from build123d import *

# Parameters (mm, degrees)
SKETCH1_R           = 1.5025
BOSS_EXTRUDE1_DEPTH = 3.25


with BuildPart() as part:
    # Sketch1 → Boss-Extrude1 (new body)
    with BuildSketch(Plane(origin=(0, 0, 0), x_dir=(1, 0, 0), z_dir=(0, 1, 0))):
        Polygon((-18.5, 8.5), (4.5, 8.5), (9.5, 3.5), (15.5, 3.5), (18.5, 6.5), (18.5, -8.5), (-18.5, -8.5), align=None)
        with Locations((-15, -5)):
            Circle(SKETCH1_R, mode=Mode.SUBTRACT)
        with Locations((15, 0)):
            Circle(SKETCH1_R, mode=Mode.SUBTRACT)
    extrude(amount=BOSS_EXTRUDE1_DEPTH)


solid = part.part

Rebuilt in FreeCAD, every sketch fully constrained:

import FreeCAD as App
import Part
import Sketcher
from FreeCAD import Vector
Q = App.Units.Quantity


def add_polygon(sketch, points):
    """Adds a closed chain of lines whose ends are joined by coincident constraints."""
    first, n = sketch.GeometryCount, len(points)
    for a, b in zip(points, points[1:] + points[:1]):
        sketch.addGeometry(Part.LineSegment(App.Vector(*a, 0), App.Vector(*b, 0)), False)
    for i in range(n):
        sketch.addConstraint(Sketcher.Constraint("Coincident", first + i, 2, first + (i + 1) % n, 1))

doc = App.newDocument("Part")
body = doc.addObject("PartDesign::Body", "Body")

# Sketch on XZ plane
sketch1 = body.newObject("Sketcher::SketchObject", "Sketch")
sketch1.AttachmentSupport = (doc.getObject("XZ_Plane"), [""])
sketch1.MapMode = "FlatFace"
add_polygon(sketch1, [(4.5, -8.5), (-18.5, -8.5), (-18.5, 8.5), (18.5, 8.5), (18.5, -6.5), (15.5, -3.5), (9.5, -3.5)])  # lines 0-6
sketch1.addGeometry(Part.Circle(Vector(-15, 5, 0), Vector(0, 0, 1), 1.5), False)  # 7
sketch1.addGeometry(Part.Circle(Vector(15, 0, 0), Vector(0, 0, 1), 1.5), False)  # 8
sketch1.addConstraint([
    Sketcher.Constraint("Horizontal", 0),
    Sketcher.Constraint("Vertical", 1),
    Sketcher.Constraint("Horizontal", 2),
    Sketcher.Constraint("Vertical", 3),
    Sketcher.Constraint("Horizontal", 5),
    Sketcher.Constraint("Equal", 7, 8),
    Sketcher.Constraint("Symmetric", 0, 2, 2, 2, -1, 1),
    Sketcher.Constraint("PointOnObject", 8, 3, -1),
    Sketcher.Constraint("Perpendicular", 4, 6),
    Sketcher.Constraint("DistanceX", 0, 2, 0, 1, Q("23 mm")),
    Sketcher.Constraint("DistanceX", 2, 1, 2, 2, Q("37 mm")),
    Sketcher.Constraint("DistanceX", 5, 2, 5, 1, Q("6 mm")),
    Sketcher.Constraint("DistanceY", 1, 1, 1, 2, Q("17 mm")),
    Sketcher.Constraint("DistanceY", 3, 2, 3, 1, Q("15 mm")),
    Sketcher.Constraint("Angle", 4, Q("135 deg")),
    Sketcher.Constraint("Diameter", 7, Q("3.005 mm")),
    Sketcher.Constraint("DistanceX", 7, 3, -1, 1, Q("15 mm")),
    Sketcher.Constraint("DistanceY", -1, 1, 7, 3, Q("5 mm")),
    Sketcher.Constraint("DistanceX", -1, 1, 8, 3, Q("15 mm")),
])
pad1 = body.newObject("PartDesign::Pad", "Pad")
pad1.Profile = sketch1
pad1.Length = 3.25
pad1.Reversed = True

doc.recompute()
